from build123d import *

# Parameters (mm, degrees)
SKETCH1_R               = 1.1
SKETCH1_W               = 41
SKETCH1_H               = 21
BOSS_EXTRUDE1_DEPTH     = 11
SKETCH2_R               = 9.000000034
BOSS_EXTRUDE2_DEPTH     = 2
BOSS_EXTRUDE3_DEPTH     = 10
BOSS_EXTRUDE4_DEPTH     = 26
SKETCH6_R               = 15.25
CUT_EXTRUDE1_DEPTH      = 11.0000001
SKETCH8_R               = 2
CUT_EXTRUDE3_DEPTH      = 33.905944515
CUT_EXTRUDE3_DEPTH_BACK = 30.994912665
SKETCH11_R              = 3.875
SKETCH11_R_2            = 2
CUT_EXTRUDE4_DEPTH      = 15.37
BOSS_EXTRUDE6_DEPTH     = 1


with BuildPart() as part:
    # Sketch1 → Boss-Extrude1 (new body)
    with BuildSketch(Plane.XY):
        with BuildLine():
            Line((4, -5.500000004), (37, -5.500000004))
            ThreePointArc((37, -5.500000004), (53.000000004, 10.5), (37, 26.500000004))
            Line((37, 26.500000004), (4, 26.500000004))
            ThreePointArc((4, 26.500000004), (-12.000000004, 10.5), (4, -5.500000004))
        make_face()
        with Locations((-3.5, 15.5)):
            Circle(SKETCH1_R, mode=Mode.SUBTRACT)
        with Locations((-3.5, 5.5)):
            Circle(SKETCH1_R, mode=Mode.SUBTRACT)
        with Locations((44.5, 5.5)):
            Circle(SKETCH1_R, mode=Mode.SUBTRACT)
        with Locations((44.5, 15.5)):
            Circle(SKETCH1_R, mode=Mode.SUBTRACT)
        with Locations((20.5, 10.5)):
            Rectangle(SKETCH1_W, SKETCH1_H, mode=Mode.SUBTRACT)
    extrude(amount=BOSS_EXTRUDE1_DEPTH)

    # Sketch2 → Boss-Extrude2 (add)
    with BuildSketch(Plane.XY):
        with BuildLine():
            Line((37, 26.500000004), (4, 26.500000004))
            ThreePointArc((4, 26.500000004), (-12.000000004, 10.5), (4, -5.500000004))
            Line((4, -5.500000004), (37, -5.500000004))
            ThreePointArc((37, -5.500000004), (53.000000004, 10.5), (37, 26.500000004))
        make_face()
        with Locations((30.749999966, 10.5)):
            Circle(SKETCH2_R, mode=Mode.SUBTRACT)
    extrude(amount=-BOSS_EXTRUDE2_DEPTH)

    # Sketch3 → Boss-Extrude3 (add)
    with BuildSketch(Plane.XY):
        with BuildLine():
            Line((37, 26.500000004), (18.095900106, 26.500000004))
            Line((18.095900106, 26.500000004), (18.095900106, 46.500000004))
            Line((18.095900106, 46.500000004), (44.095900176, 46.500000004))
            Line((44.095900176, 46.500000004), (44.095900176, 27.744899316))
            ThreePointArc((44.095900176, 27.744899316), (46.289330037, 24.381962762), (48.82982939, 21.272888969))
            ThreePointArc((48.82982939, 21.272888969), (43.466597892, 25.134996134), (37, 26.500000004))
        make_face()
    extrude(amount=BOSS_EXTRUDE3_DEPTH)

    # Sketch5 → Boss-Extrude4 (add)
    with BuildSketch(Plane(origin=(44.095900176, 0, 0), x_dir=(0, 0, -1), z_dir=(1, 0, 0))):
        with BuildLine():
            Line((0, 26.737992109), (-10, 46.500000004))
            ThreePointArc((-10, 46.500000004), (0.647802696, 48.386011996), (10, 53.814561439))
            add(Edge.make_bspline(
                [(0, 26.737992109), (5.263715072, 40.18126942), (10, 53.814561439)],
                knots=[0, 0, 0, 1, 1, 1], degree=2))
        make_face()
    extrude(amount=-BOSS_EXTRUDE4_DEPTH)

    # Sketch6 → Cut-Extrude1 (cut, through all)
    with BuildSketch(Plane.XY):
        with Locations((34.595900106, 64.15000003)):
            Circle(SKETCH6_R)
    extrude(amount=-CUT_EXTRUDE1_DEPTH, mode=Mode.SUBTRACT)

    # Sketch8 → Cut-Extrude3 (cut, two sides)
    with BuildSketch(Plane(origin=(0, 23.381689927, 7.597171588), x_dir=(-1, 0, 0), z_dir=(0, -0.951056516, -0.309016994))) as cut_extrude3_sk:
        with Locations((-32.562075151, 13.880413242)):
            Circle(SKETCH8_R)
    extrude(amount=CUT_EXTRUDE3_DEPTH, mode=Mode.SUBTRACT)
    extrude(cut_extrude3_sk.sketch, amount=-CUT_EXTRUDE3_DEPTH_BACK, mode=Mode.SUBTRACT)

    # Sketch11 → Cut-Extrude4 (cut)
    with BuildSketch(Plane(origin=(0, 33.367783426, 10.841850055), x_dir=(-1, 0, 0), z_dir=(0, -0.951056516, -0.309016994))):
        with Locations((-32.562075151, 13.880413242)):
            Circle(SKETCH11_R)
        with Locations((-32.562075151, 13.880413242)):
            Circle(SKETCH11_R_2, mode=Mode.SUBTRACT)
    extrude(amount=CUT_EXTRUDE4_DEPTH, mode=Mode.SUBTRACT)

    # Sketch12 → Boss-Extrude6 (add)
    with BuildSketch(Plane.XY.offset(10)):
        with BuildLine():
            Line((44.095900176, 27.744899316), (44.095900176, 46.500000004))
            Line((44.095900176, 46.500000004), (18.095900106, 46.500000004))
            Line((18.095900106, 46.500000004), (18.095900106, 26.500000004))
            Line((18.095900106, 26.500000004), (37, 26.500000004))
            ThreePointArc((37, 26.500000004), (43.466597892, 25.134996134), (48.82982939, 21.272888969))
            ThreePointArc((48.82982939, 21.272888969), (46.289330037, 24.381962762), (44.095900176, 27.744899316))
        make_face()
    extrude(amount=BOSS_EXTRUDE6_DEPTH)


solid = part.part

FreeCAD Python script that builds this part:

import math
import FreeCAD as App
import Part
import Sketcher

V = App.Vector

doc = App.newDocument("Part")
params = doc.addObject("Spreadsheet::Sheet", "Params")
for row, (alias, value) in enumerate([
    ("sketch1_radius", "16 mm"),
    ("sketch1_diameter", "2.2 mm"),
    ("sketch1_width", "33 mm"),
    ("sketch1_width2", "41 mm"),
    ("sketch1_height", "21 mm"),
    ("pad1_length", "11 mm"),
    ("sketch2_diameter", "18 mm"),
    ("sketch2_radius", "16 mm"),
    ("sketch2_width", "33 mm"),
    ("pad2_length", "2 mm"),
    ("sketch3_radius", "16 mm"),
    ("sketch3_width", "26 mm"),
    ("sketch3_height", "20 mm"),
    ("pad3_length", "10 mm"),
    ("sketch4_radius", "31 mm"),
    ("pad4_length", "26 mm"),
    ("sketch5_diameter", "30.5 mm"),
    ("sketch6_diameter", "4 mm"),
    ("sketch7_diameter", "4 mm"),
    ("sketch7_diameter2", "7.75 mm"),
    ("pocket3_length", "15.37 mm"),
    ("sketch8_radius", "16 mm"),
    ("sketch8_width", "26 mm"),
    ("sketch8_height", "20 mm"),
    ("pad5_length", "1 mm"),
], start=1):
    params.set(f"A{row}", alias)
    params.set(f"B{row}", "=" + value)
    params.setAlias(f"B{row}", alias)

body = doc.addObject("PartDesign::Body", "Body")

# Sketch on XY plane
sketch1 = body.newObject("Sketcher::SketchObject", "Sketch")
sketch1.AttachmentSupport = (doc.getObject("XY_Plane"), [""])
sketch1.MapMode = "FlatFace"
sketch1.addGeometry([
    Part.LineSegment(V(4, -5.5, 0), V(37, -5.5, 0)),  # 0
    Part.ArcOfCircle(Part.Circle(V(37, 10.5, 0), V(0, 0, 1), 16), math.radians(-90), math.radians(90)),  # 1
    Part.LineSegment(V(37, 26.5, 0), V(4, 26.5, 0)),  # 2
    Part.ArcOfCircle(Part.Circle(V(4, 10.5, 0), V(0, 0, 1), 16), math.radians(90), math.radians(270)),  # 3
    Part.Circle(V(-3.5, 5.5, 0), V(0, 0, 1), 1.1),  # 4
    Part.Circle(V(44.5, 5.5, 0), V(0, 0, 1), 1.1),  # 5
    Part.Circle(V(-3.5, 15.5, 0), V(0, 0, 1), 1.1),  # 6
    Part.LineSegment(V(41, 0, 0), V(0, 0, 0)),  # 7
    Part.LineSegment(V(0, 0, 0), V(0, 21, 0)),  # 8
    Part.LineSegment(V(0, 21, 0), V(41, 21, 0)),  # 9
    Part.LineSegment(V(41, 21, 0), V(41, 0, 0)),  # 10
    Part.Circle(V(44.5, 15.5, 0), V(0, 0, 1), 1.1),  # 11
], False)
sketch1.addConstraint([
    Sketcher.Constraint("Tangent", 0, 2, 1, 1),
    Sketcher.Constraint("Tangent", 1, 2, 2, 1),
    Sketcher.Constraint("Tangent", 2, 2, 3, 1),
    Sketcher.Constraint("Tangent", 3, 2, 0, 1),
    Sketcher.Constraint("Coincident", 7, 2, 8, 1),
    Sketcher.Constraint("Coincident", 8, 2, 9, 1),
    Sketcher.Constraint("Coincident", 9, 2, 10, 1),
    Sketcher.Constraint("Coincident", 10, 2, 7, 1),
    Sketcher.Constraint("Horizontal", 0),
    Sketcher.Constraint("Horizontal", 2),
    Sketcher.Constraint("Horizontal", 7),
    Sketcher.Constraint("Vertical", 8),
    Sketcher.Constraint("Horizontal", 9),
    Sketcher.Constraint("Vertical", 10),
    Sketcher.Constraint("Coincident", 7, 2, -1, 1),
    Sketcher.Constraint("Equal", 4, 5),
    Sketcher.Constraint("Equal", 5, 6),
    Sketcher.Constraint("Equal", 6, 11),
    Sketcher.Constraint("Horizontal", 4, 3, 5, 3),
    Sketcher.Constraint("Horizontal", 6, 3, 11, 3),
    Sketcher.Constraint("Vertical", 4, 3, 6, 3),
    Sketcher.Constraint("Vertical", 5, 3, 11, 3),
    Sketcher.Constraint("Radius", 1, 16.0),
    Sketcher.Constraint("Diameter", 4, 2.2),
    Sketcher.Constraint("DistanceX", 0, 1, 0, 2, 33.0),
    Sketcher.Constraint("DistanceX", 7, 2, 7, 1, 41.0),
    Sketcher.Constraint("DistanceY", 8, 1, 8, 2, 21.0),
    Sketcher.Constraint("DistanceX", -1, 1, 1, 3, 37.0),
    Sketcher.Constraint("DistanceY", 4, 3, 3, 3, 5.0),
    Sketcher.Constraint("DistanceX", 4, 3, 5, 3, 48.0),
    Sketcher.Constraint("DistanceY", 3, 3, 6, 3, 5.0),
    Sketcher.Constraint("DistanceY", -1, 1, 1, 3, 10.5),
    Sketcher.Constraint("DistanceX", 4, 3, -1, 1, 3.5),
])
sketch1.setExpression("Constraints[22]", "Params.sketch1_radius")
sketch1.setExpression("Constraints[23]", "Params.sketch1_diameter")
sketch1.setExpression("Constraints[24]", "Params.sketch1_width")
sketch1.setExpression("Constraints[25]", "Params.sketch1_width2")
sketch1.setExpression("Constraints[26]", "Params.sketch1_height")
pad1 = body.newObject("PartDesign::Pad", "Pad")
pad1.Profile = sketch1
pad1.setExpression("Length", "Params.pad1_length")

# Sketch on XY plane
sketch2 = body.newObject("Sketcher::SketchObject", "Sketch001")
sketch2.AttachmentSupport = (doc.getObject("XY_Plane"), [""])
sketch2.MapMode = "FlatFace"
sketch2.addGeometry([
    Part.LineSegment(V(37, 27, 0), V(4, 27, 0)),  # 0
    Part.ArcOfCircle(Part.Circle(V(4, 10, 0), V(0, 0, 1), 16), math.radians(90), math.radians(270)),  # 1
    Part.LineSegment(V(4, -6, 0), V(37, -6, 0)),  # 2
    Part.ArcOfCircle(Part.Circle(V(37, 10, 0), V(0, 0, 1), 16), math.radians(-90), math.radians(90)),  # 3
    Part.Circle(V(31, 10, 0), V(0, 0, 1), 9),  # 4
], False)
sketch2.addConstraint([
    Sketcher.Constraint("Tangent", 0, 2, 1, 1),
    Sketcher.Constraint("Tangent", 1, 2, 2, 1),
    Sketcher.Constraint("Tangent", 2, 2, 3, 1),
    Sketcher.Constraint("Tangent", 3, 2, 0, 1),
    Sketcher.Constraint("Horizontal", 0),
    Sketcher.Constraint("Horizontal", 2),
    Sketcher.Constraint("Horizontal", 3, 3, 4, 3),
    Sketcher.Constraint("Diameter", 4, 18.0),
    Sketcher.Constraint("Radius", 1, 16.0),
    Sketcher.Constraint("DistanceX", 0, 2, 0, 1, 33.0),
    Sketcher.Constraint("DistanceX", -1, 1, 1, 3, 4.0),
    Sketcher.Constraint("DistanceY", -1, 1, 1, 3, 10.5),
    Sketcher.Constraint("DistanceX", -1, 1, 4, 3, 30.75),
])
sketch2.setExpression("Constraints[7]", "Params.sketch2_diameter")
sketch2.setExpression("Constraints[8]", "Params.sketch2_radius")
sketch2.setExpression("Constraints[9]", "Params.sketch2_width")
pad2 = body.newObject("PartDesign::Pad", "Pad001")
pad2.Profile = sketch2
pad2.setExpression("Length", "Params.pad2_length")
pad2.Reversed = True

# Sketch on XY plane
sketch3 = body.newObject("Sketcher::SketchObject", "Sketch002")
sketch3.AttachmentSupport = (doc.getObject("XY_Plane"), [""])
sketch3.MapMode = "FlatFace"
sketch3.addGeometry([
    Part.LineSegment(V(18, 27, 0), V(37, 27, 0)),  # 0
    Part.ArcOfCircle(Part.Circle(V(37, 11, 0), V(0, 0, 1), 16), math.radians(42), math.radians(90)),  # 1
    Part.ArcOfCircle(Part.Circle(V(77, 47, 0), V(0, 0, 1), 37), math.radians(-149.96), math.radians(-137.68)),  # 2
    Part.LineSegment(V(44, 28, 0), V(44, 47, 0)),  # 3
    Part.LineSegment(V(44, 47, 0), V(18, 47, 0)),  # 4
    Part.LineSegment(V(18, 47, 0), V(18, 27, 0)),  # 5
], False)
sketch3.addConstraint([
    Sketcher.Constraint("Tangent", 0, 2, 1, 2),
    Sketcher.Constraint("Tangent", 1, 1, 2, 2),
    Sketcher.Constraint("Coincident", 2, 1, 3, 1),
    Sketcher.Constraint("Coincident", 3, 2, 4, 1),
    Sketcher.Constraint("Coincident", 4, 2, 5, 1),
    Sketcher.Constraint("Coincident", 5, 2, 0, 1),
    Sketcher.Constraint("Horizontal", 0),
    Sketcher.Constraint("Vertical", 3),
    Sketcher.Constraint("Horizontal", 4),
    Sketcher.Constraint("Vertical", 5),
    Sketcher.Constraint("Radius", 1, 16.0),
    Sketcher.Constraint("DistanceX", 4, 2, 4, 1, 26.0),
    Sketcher.Constraint("DistanceY", 5, 2, 5, 1, 20.0),
    Sketcher.Constraint("DistanceX", -1, 1, 1, 3, 37.0),
    Sketcher.Constraint("DistanceY", -1, 1, 1, 3, 10.5),
    Sketcher.Constraint("DistanceX", 0, 1, 0, 2, 18.9041),
    Sketcher.Constraint("DistanceY", 3, 1, 3, 2, 18.755101),
    Sketcher.Constraint("Radius", 2, 37.489123),
])
sketch3.setExpression("Constraints[10]", "Params.sketch3_radius")
sketch3.setExpression("Constraints[11]", "Params.sketch3_width")
sketch3.setExpression("Constraints[12]", "Params.sketch3_height")
pad3 = body.newObject("PartDesign::Pad", "Pad002")
pad3.Profile = sketch3
pad3.setExpression("Length", "Params.pad3_length")

# Sketch on YZ plane
sketch4 = body.newObject("Sketcher::SketchObject", "Sketch003")
sketch4.AttachmentSupport = (doc.getObject("YZ_Plane"), [""])
sketch4.MapMode = "FlatFace"
sketch4.AttachmentOffset = App.Placement(V(0, 0, 44.0959), App.Rotation())
sketch4.addGeometry([
    Part.LineSegment(V(46.5, 10, 0), V(26.737992, 0, 0)),
    Part.BSplineCurve([V(26.737992, 0, 0), V(40.181269, -5.263715, 0), V(53.814561, -10, 0)], [3, 3], [0, 1], False, 2, [1, 1, 1], False),
    Part.ArcOfCircle(Part.Circle(V(77.5, 10, 0), V(0, 0, 1), 31), math.radians(-180), math.radians(-139.82223)),
], False)
sketch4.addConstraint([
    Sketcher.Constraint("Block", 1),
    Sketcher.Constraint("Coincident", 0, 2, 1, 1),
    Sketcher.Constraint("Coincident", 1, 2, 2, 2),
    Sketcher.Constraint("Coincident", 2, 1, 0, 1),
    Sketcher.Constraint("Radius", 2, 31.0),
    Sketcher.Constraint("DistanceY", -1, 1, 2, 3, 10.0),
    Sketcher.Constraint("DistanceY", -1, 1, 2, 1, 10.0),
])
sketch4.setExpression("Constraints[4]", "Params.sketch4_radius")
pad4 = body.newObject("PartDesign::Pad", "Pad003")
pad4.Profile = sketch4
pad4.setExpression("Length", "Params.pad4_length")
pad4.Reversed = True

# Sketch on XY plane
sketch5 = body.newObject("Sketcher::SketchObject", "Sketch004")
sketch5.AttachmentSupport = (doc.getObject("XY_Plane"), [""])
sketch5.MapMode = "FlatFace"
sketch5.addGeometry(Part.Circle(V(35, 64, 0), V(0, 0, 1), 15), False)
sketch5.addConstraint([
    Sketcher.Constraint("Diameter", 0, 30.5),
    Sketcher.Constraint("DistanceY", -1, 1, 0, 3, 64.15),
    Sketcher.Constraint("DistanceX", -1, 1, 0, 3, 34.5959),
])
sketch5.setExpression("Constraints[0]", "Params.sketch5_diameter")
pocket1 = body.newObject("PartDesign::Pocket", "Pocket")
pocket1.Profile = sketch5
pocket1.Type = "ThroughAll"

# Sketch on an angled plane
sketch6 = body.newObject("Sketcher::SketchObject", "Sketch005")
sketch6.Placement = App.Placement(V(0, 23.38169, 7.597172), App.Rotation(V(-1, 0, 0), V(0, 0.309016994, -0.951056516), V(0, -0.951056516, -0.309016994), "ZXY"))
sketch6.addGeometry(Part.Circle(V(-32.6, 13.9, 0), V(0, 0, 1), 2), False)
sketch6.addConstraint([
    Sketcher.Constraint("Diameter", 0, 4.0),
    Sketcher.Constraint("DistanceX", 0, 3, -1, 1, 32.562075),
    Sketcher.Constraint("DistanceY", -1, 1, 0, 3, 13.880413),
])
sketch6.setExpression("Constraints[0]", "Params.sketch6_diameter")
pocket2 = body.newObject("PartDesign::Pocket", "Pocket001")
pocket2.Profile = sketch6
pocket2.Type = "ThroughAll"
pocket2.Midplane = True

# Sketch on an angled plane
sketch7 = body.newObject("Sketcher::SketchObject", "Sketch006")
sketch7.Placement = App.Placement(V(0, 33.367783, 10.84185), App.Rotation(V(-1, 0, 0), V(0, 0.309016994, -0.951056516), V(0, -0.951056516, -0.309016994), "ZXY"))
sketch7.addGeometry([
    Part.Circle(V(-32.6, 13.9, 0), V(0, 0, 1), 3.9),
    Part.Circle(V(-32.6, 13.9, 0), V(0, 0, 1), 2),
], False)
sketch7.addConstraint([
    Sketcher.Constraint("Coincident", 1, 3, 0, 3),
    Sketcher.Constraint("Diameter", 1, 4.0),
    Sketcher.Constraint("Diameter", 0, 7.75),
    Sketcher.Constraint("DistanceX", 0, 3, -1, 1, 32.562075),
    Sketcher.Constraint("DistanceY", -1, 1, 0, 3, 13.880413),
])
sketch7.setExpression("Constraints[1]", "Params.sketch7_diameter")
sketch7.setExpression("Constraints[2]", "Params.sketch7_diameter2")
pocket3 = body.newObject("PartDesign::Pocket", "Pocket002")
pocket3.Profile = sketch7
pocket3.setExpression("Length", "Params.pocket3_length")
pocket3.Reversed = True

# Sketch on XY plane
sketch8 = body.newObject("Sketcher::SketchObject", "Sketch007")
sketch8.AttachmentSupport = (doc.getObject("XY_Plane"), [""])
sketch8.MapMode = "FlatFace"
sketch8.AttachmentOffset = App.Placement(V(0, 0, 10), App.Rotation())
sketch8.addGeometry([
    Part.LineSegment(V(44, 28, 0), V(44, 47, 0)),  # 0
    Part.LineSegment(V(44, 47, 0), V(18, 47, 0)),  # 1
    Part.LineSegment(V(18, 47, 0), V(18, 27, 0)),  # 2
    Part.LineSegment(V(18, 27, 0), V(37, 27, 0)),  # 3
    Part.ArcOfCircle(Part.Circle(V(37, 11, 0), V(0, 0, 1), 16), math.radians(42), math.radians(90)),  # 4
    Part.ArcOfCircle(Part.Circle(V(77, 47, 0), V(0, 0, 1), 37), math.radians(-149.96), math.radians(-137.68)),  # 5
], False)
sketch8.addConstraint([
    Sketcher.Constraint("Coincident", 0, 2, 1, 1),
    Sketcher.Constraint("Coincident", 1, 2, 2, 1),
    Sketcher.Constraint("Coincident", 2, 2, 3, 1),
    Sketcher.Constraint("Tangent", 3, 2, 4, 2),
    Sketcher.Constraint("Tangent", 4, 1, 5, 2),
    Sketcher.Constraint("Coincident", 5, 1, 0, 1),
    Sketcher.Constraint("Vertical", 0),
    Sketcher.Constraint("Horizontal", 1),
    Sketcher.Constraint("Vertical", 2),
    Sketcher.Constraint("Horizontal", 3),
    Sketcher.Constraint("Radius", 4, 16.0),
    Sketcher.Constraint("DistanceX", 1, 2, 1, 1, 26.0),
    Sketcher.Constraint("DistanceY", 2, 2, 2, 1, 20.0),
    Sketcher.Constraint("DistanceX", -1, 1, 4, 3, 37.0),
    Sketcher.Constraint("DistanceY", -1, 1, 4, 3, 10.5),
    Sketcher.Constraint("DistanceX", 3, 1, 3, 2, 18.9041),
    Sketcher.Constraint("DistanceY", 0, 1, 0, 2, 18.755101),
    Sketcher.Constraint("Radius", 5, 37.489123),
])
sketch8.setExpression("Constraints[10]", "Params.sketch8_radius")
sketch8.setExpression("Constraints[11]", "Params.sketch8_width")
sketch8.setExpression("Constraints[12]", "Params.sketch8_height")
pad5 = body.newObject("PartDesign::Pad", "Pad004")
pad5.Profile = sketch8
pad5.setExpression("Length", "Params.pad5_length")

doc.recompute()
